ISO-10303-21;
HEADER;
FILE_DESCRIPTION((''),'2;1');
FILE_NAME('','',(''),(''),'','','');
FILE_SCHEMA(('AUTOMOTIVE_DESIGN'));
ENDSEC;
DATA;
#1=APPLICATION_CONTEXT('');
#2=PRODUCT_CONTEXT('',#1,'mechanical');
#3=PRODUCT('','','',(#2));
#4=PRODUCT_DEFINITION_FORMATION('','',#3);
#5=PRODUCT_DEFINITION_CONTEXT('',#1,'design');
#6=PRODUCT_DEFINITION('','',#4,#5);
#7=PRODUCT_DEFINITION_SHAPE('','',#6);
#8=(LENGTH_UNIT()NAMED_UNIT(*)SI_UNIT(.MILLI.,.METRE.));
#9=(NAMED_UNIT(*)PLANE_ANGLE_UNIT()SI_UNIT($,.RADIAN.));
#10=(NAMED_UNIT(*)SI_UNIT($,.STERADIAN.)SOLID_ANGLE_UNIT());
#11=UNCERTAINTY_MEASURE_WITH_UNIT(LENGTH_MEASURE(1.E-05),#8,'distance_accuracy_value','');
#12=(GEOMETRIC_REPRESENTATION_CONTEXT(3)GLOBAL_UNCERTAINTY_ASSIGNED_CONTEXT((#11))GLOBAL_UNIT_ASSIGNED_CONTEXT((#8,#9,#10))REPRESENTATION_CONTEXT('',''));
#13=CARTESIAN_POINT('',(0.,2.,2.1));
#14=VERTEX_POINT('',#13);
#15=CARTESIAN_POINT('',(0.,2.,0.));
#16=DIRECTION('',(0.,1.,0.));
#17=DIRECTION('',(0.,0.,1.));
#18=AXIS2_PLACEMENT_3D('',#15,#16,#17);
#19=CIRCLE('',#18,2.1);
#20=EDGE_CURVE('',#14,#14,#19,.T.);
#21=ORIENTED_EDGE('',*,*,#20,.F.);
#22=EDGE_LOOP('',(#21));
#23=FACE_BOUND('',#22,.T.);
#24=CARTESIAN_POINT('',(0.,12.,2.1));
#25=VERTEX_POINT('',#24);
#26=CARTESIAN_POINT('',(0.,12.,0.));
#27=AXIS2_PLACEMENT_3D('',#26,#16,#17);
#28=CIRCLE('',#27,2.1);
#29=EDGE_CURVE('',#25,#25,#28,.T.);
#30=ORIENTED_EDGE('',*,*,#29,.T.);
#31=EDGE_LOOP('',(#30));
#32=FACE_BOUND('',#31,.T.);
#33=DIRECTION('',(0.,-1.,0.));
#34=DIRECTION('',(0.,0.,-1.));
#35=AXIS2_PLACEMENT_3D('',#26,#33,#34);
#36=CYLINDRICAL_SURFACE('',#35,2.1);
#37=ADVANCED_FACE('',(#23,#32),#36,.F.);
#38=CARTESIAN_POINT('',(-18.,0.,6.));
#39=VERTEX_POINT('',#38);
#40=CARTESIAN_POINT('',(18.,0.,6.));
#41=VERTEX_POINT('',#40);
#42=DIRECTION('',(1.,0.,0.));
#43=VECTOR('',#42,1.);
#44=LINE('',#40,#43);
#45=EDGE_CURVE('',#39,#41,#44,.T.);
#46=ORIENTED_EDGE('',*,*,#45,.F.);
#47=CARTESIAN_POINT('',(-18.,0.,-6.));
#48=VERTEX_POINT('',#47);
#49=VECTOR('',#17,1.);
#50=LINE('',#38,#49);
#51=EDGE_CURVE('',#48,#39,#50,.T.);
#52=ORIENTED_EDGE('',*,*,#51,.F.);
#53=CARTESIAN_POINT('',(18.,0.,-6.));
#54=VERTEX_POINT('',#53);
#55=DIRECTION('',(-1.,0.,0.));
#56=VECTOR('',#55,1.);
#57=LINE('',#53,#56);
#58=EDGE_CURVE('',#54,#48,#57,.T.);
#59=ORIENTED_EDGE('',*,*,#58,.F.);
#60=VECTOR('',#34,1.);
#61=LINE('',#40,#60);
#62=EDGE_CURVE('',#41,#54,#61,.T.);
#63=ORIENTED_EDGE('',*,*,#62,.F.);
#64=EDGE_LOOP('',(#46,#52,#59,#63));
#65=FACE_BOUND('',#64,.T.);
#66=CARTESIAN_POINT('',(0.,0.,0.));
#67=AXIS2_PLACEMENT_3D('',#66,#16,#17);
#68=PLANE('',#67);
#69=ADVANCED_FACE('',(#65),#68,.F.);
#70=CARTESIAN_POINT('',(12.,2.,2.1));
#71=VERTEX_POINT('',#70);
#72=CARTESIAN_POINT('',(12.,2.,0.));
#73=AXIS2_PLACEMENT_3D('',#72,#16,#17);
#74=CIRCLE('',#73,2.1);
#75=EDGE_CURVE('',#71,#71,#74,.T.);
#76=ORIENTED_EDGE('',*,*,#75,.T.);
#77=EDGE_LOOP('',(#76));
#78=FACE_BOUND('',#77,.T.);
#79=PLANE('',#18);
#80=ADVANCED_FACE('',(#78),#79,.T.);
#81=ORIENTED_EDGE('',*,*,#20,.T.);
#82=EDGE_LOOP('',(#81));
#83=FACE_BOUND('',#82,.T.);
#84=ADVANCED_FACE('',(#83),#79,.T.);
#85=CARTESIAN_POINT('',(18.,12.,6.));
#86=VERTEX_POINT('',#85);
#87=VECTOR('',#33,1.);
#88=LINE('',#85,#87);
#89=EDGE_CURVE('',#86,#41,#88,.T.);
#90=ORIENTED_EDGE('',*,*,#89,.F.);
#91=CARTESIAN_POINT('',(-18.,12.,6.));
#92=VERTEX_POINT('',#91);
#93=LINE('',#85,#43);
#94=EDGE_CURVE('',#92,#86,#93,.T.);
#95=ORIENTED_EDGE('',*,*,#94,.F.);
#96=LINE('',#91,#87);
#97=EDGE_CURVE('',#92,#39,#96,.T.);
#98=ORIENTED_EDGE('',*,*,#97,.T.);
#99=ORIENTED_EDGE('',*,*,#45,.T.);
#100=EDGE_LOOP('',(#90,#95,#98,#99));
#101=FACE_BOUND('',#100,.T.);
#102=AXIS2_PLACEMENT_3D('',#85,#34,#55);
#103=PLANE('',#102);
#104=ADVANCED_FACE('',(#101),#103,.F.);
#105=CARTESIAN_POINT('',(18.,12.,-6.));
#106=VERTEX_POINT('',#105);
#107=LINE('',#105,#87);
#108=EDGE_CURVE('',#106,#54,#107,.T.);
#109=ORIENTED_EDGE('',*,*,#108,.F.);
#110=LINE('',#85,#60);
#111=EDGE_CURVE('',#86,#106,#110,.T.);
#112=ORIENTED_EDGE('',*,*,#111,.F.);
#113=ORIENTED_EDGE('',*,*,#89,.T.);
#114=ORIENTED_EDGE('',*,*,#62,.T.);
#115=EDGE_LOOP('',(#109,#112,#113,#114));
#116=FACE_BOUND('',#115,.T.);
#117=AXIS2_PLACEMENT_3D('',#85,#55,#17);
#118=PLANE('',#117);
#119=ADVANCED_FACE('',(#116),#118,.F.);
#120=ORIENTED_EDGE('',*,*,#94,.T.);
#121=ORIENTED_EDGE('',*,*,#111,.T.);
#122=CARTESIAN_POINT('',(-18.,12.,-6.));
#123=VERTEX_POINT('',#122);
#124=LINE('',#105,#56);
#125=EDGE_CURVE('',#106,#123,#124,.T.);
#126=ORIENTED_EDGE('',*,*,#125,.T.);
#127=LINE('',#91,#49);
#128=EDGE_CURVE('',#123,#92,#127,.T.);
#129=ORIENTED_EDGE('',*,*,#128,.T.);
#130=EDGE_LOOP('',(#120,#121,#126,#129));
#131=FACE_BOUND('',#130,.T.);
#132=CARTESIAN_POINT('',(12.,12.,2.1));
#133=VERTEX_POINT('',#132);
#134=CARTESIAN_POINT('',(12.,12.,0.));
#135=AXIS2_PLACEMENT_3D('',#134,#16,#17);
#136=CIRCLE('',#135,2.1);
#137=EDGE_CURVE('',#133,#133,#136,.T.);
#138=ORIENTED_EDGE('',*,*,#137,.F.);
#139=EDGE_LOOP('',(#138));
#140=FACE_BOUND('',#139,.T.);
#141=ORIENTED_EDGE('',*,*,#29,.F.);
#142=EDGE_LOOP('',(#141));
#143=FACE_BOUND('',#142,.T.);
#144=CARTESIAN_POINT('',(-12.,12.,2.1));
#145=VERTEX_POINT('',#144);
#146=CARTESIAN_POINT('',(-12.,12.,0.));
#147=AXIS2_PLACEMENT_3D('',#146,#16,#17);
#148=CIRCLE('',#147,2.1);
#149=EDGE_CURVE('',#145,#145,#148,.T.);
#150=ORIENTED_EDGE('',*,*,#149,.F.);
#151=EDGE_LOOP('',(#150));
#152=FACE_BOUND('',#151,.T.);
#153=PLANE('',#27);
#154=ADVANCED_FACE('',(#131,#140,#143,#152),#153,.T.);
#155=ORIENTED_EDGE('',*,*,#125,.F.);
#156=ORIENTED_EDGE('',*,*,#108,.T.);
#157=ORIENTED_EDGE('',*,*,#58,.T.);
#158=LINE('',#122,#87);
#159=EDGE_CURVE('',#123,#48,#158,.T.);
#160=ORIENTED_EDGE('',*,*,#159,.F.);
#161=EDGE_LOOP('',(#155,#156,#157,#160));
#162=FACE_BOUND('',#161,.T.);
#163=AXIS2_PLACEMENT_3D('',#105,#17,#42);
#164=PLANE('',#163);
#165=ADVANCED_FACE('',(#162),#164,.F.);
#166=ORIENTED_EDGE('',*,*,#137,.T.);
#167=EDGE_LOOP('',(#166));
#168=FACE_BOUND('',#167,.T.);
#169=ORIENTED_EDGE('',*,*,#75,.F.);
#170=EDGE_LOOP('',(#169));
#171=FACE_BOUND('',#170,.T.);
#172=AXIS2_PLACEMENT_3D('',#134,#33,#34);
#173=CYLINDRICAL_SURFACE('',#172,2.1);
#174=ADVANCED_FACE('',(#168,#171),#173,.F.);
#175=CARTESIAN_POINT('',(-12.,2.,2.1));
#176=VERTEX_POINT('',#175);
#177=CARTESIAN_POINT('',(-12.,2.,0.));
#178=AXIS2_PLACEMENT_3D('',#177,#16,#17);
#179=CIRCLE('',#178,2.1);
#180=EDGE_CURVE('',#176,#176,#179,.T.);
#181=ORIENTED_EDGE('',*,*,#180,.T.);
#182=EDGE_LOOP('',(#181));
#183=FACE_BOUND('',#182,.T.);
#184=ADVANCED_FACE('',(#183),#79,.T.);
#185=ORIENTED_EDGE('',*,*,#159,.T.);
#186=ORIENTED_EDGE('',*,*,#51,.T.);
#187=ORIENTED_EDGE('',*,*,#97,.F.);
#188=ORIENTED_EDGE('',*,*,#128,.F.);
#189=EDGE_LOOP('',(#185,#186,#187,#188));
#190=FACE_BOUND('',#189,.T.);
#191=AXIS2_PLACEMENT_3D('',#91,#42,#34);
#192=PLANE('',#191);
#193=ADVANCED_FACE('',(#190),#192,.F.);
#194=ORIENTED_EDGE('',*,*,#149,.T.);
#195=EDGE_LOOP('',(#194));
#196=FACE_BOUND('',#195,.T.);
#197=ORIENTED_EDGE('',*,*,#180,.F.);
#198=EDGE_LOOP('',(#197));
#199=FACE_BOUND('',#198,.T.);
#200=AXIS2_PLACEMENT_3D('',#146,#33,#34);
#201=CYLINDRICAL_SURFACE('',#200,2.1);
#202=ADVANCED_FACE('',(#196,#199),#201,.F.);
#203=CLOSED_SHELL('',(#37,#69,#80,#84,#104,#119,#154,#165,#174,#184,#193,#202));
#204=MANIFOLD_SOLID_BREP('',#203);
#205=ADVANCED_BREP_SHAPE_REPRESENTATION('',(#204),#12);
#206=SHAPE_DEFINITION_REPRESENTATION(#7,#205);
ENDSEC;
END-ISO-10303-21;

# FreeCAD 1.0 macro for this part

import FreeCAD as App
import Part
import Sketcher
from FreeCAD import Vector

doc = App.newDocument("Part")
body = doc.addObject("PartDesign::Body", "Body")

sketch1 = doc.addObject("Sketcher::SketchObject", "Sketch")
body.addObject(sketch1)
sketch1.AttachmentSupport = (doc.XZ_Plane, [""])
sketch1.MapMode = "FlatFace"
sketch1.addGeometry(Part.LineSegment(Vector(-18, -6, 0), Vector(-18, 6, 0)), False)
sketch1.addGeometry(Part.LineSegment(Vector(-18, 6, 0), Vector(18, 6, 0)), False)
sketch1.addGeometry(Part.LineSegment(Vector(18, 6, 0), Vector(18, -6, 0)), False)
sketch1.addGeometry(Part.LineSegment(Vector(18, -6, 0), Vector(-18, -6, 0)), False)
sketch1.addGeometry(Part.Circle(Vector(-12, 0, 0), Vector(0, 0, 1), 2.1), False)
sketch1.addGeometry(Part.Circle(Vector(0, 0, 0), Vector(0, 0, 1), 2.1), False)
sketch1.addGeometry(Part.Circle(Vector(12, 0, 0), Vector(0, 0, 1), 2.1), False)
sketch1.addConstraint(Sketcher.Constraint("Coincident", 0, 2, 1, 1))
sketch1.addConstraint(Sketcher.Constraint("Coincident", 1, 2, 2, 1))
sketch1.addConstraint(Sketcher.Constraint("Coincident", 2, 2, 3, 1))
sketch1.addConstraint(Sketcher.Constraint("Coincident", 3, 2, 0, 1))
sketch1.addConstraint(Sketcher.Constraint("Vertical", 0))
sketch1.addConstraint(Sketcher.Constraint("Horizontal", 1))
sketch1.addConstraint(Sketcher.Constraint("Vertical", 2))
sketch1.addConstraint(Sketcher.Constraint("Horizontal", 3))
sketch1.addConstraint(Sketcher.Constraint("Coincident", 5, 3, -1, 1))
sketch1.addConstraint(Sketcher.Constraint("Equal", 4, 5))
sketch1.addConstraint(Sketcher.Constraint("Equal", 5, 6))
sketch1.addConstraint(Sketcher.Constraint("Symmetric", 4, 3, 6, 3, -1, 1))
sketch1.addConstraint(Sketcher.Constraint("Symmetric", 0, 2, 2, 2, -1, 1))
sketch1.addConstraint(Sketcher.Constraint("PointOnObject", 4, 3, -1))
sketch1.addConstraint(Sketcher.Constraint("Diameter", 4, 4.2))
sketch1.addConstraint(Sketcher.Constraint("DistanceX", 1, 1, 1, 2, 36.0))
sketch1.addConstraint(Sketcher.Constraint("DistanceY", 0, 1, 0, 2, 12.0))
sketch1.addConstraint(Sketcher.Constraint("DistanceX", 4, 3, -1, 1, 12.0))
pad1 = doc.addObject("PartDesign::Pad", "Pad")
body.addObject(pad1)
pad1.Profile = sketch1
pad1.Length = 12
pad1.Reversed = True

sketch2 = doc.addObject("Sketcher::SketchObject", "Sketch001")
body.addObject(sketch2)
sketch2.AttachmentSupport = (doc.XZ_Plane, [""])
sketch2.MapMode = "FlatFace"
sketch2.addGeometry(Part.Circle(Vector(-12, 0, 0), Vector(0, 0, 1), 2.1), False)
sketch2.addGeometry(Part.Circle(Vector(0, 0, 0), Vector(0, 0, 1), 2.1), False)
sketch2.addGeometry(Part.Circle(Vector(12, 0, 0), Vector(0, 0, 1), 2.1), False)
sketch2.addConstraint(Sketcher.Constraint("Coincident", 1, 3, -1, 1))
sketch2.addConstraint(Sketcher.Constraint("Equal", 0, 1))
sketch2.addConstraint(Sketcher.Constraint("Equal", 1, 2))
sketch2.addConstraint(Sketcher.Constraint("Symmetric", 0, 3, 2, 3, -1, 1))
sketch2.addConstraint(Sketcher.Constraint("PointOnObject", 0, 3, -1))
sketch2.addConstraint(Sketcher.Constraint("Diameter", 0, 4.2))
sketch2.addConstraint(Sketcher.Constraint("DistanceX", 0, 3, -1, 1, 12.0))
pad2 = doc.addObject("PartDesign::Pad", "Pad001")
body.addObject(pad2)
pad2.Profile = sketch2
pad2.Length = 2
pad2.Reversed = True

doc.recompute()
